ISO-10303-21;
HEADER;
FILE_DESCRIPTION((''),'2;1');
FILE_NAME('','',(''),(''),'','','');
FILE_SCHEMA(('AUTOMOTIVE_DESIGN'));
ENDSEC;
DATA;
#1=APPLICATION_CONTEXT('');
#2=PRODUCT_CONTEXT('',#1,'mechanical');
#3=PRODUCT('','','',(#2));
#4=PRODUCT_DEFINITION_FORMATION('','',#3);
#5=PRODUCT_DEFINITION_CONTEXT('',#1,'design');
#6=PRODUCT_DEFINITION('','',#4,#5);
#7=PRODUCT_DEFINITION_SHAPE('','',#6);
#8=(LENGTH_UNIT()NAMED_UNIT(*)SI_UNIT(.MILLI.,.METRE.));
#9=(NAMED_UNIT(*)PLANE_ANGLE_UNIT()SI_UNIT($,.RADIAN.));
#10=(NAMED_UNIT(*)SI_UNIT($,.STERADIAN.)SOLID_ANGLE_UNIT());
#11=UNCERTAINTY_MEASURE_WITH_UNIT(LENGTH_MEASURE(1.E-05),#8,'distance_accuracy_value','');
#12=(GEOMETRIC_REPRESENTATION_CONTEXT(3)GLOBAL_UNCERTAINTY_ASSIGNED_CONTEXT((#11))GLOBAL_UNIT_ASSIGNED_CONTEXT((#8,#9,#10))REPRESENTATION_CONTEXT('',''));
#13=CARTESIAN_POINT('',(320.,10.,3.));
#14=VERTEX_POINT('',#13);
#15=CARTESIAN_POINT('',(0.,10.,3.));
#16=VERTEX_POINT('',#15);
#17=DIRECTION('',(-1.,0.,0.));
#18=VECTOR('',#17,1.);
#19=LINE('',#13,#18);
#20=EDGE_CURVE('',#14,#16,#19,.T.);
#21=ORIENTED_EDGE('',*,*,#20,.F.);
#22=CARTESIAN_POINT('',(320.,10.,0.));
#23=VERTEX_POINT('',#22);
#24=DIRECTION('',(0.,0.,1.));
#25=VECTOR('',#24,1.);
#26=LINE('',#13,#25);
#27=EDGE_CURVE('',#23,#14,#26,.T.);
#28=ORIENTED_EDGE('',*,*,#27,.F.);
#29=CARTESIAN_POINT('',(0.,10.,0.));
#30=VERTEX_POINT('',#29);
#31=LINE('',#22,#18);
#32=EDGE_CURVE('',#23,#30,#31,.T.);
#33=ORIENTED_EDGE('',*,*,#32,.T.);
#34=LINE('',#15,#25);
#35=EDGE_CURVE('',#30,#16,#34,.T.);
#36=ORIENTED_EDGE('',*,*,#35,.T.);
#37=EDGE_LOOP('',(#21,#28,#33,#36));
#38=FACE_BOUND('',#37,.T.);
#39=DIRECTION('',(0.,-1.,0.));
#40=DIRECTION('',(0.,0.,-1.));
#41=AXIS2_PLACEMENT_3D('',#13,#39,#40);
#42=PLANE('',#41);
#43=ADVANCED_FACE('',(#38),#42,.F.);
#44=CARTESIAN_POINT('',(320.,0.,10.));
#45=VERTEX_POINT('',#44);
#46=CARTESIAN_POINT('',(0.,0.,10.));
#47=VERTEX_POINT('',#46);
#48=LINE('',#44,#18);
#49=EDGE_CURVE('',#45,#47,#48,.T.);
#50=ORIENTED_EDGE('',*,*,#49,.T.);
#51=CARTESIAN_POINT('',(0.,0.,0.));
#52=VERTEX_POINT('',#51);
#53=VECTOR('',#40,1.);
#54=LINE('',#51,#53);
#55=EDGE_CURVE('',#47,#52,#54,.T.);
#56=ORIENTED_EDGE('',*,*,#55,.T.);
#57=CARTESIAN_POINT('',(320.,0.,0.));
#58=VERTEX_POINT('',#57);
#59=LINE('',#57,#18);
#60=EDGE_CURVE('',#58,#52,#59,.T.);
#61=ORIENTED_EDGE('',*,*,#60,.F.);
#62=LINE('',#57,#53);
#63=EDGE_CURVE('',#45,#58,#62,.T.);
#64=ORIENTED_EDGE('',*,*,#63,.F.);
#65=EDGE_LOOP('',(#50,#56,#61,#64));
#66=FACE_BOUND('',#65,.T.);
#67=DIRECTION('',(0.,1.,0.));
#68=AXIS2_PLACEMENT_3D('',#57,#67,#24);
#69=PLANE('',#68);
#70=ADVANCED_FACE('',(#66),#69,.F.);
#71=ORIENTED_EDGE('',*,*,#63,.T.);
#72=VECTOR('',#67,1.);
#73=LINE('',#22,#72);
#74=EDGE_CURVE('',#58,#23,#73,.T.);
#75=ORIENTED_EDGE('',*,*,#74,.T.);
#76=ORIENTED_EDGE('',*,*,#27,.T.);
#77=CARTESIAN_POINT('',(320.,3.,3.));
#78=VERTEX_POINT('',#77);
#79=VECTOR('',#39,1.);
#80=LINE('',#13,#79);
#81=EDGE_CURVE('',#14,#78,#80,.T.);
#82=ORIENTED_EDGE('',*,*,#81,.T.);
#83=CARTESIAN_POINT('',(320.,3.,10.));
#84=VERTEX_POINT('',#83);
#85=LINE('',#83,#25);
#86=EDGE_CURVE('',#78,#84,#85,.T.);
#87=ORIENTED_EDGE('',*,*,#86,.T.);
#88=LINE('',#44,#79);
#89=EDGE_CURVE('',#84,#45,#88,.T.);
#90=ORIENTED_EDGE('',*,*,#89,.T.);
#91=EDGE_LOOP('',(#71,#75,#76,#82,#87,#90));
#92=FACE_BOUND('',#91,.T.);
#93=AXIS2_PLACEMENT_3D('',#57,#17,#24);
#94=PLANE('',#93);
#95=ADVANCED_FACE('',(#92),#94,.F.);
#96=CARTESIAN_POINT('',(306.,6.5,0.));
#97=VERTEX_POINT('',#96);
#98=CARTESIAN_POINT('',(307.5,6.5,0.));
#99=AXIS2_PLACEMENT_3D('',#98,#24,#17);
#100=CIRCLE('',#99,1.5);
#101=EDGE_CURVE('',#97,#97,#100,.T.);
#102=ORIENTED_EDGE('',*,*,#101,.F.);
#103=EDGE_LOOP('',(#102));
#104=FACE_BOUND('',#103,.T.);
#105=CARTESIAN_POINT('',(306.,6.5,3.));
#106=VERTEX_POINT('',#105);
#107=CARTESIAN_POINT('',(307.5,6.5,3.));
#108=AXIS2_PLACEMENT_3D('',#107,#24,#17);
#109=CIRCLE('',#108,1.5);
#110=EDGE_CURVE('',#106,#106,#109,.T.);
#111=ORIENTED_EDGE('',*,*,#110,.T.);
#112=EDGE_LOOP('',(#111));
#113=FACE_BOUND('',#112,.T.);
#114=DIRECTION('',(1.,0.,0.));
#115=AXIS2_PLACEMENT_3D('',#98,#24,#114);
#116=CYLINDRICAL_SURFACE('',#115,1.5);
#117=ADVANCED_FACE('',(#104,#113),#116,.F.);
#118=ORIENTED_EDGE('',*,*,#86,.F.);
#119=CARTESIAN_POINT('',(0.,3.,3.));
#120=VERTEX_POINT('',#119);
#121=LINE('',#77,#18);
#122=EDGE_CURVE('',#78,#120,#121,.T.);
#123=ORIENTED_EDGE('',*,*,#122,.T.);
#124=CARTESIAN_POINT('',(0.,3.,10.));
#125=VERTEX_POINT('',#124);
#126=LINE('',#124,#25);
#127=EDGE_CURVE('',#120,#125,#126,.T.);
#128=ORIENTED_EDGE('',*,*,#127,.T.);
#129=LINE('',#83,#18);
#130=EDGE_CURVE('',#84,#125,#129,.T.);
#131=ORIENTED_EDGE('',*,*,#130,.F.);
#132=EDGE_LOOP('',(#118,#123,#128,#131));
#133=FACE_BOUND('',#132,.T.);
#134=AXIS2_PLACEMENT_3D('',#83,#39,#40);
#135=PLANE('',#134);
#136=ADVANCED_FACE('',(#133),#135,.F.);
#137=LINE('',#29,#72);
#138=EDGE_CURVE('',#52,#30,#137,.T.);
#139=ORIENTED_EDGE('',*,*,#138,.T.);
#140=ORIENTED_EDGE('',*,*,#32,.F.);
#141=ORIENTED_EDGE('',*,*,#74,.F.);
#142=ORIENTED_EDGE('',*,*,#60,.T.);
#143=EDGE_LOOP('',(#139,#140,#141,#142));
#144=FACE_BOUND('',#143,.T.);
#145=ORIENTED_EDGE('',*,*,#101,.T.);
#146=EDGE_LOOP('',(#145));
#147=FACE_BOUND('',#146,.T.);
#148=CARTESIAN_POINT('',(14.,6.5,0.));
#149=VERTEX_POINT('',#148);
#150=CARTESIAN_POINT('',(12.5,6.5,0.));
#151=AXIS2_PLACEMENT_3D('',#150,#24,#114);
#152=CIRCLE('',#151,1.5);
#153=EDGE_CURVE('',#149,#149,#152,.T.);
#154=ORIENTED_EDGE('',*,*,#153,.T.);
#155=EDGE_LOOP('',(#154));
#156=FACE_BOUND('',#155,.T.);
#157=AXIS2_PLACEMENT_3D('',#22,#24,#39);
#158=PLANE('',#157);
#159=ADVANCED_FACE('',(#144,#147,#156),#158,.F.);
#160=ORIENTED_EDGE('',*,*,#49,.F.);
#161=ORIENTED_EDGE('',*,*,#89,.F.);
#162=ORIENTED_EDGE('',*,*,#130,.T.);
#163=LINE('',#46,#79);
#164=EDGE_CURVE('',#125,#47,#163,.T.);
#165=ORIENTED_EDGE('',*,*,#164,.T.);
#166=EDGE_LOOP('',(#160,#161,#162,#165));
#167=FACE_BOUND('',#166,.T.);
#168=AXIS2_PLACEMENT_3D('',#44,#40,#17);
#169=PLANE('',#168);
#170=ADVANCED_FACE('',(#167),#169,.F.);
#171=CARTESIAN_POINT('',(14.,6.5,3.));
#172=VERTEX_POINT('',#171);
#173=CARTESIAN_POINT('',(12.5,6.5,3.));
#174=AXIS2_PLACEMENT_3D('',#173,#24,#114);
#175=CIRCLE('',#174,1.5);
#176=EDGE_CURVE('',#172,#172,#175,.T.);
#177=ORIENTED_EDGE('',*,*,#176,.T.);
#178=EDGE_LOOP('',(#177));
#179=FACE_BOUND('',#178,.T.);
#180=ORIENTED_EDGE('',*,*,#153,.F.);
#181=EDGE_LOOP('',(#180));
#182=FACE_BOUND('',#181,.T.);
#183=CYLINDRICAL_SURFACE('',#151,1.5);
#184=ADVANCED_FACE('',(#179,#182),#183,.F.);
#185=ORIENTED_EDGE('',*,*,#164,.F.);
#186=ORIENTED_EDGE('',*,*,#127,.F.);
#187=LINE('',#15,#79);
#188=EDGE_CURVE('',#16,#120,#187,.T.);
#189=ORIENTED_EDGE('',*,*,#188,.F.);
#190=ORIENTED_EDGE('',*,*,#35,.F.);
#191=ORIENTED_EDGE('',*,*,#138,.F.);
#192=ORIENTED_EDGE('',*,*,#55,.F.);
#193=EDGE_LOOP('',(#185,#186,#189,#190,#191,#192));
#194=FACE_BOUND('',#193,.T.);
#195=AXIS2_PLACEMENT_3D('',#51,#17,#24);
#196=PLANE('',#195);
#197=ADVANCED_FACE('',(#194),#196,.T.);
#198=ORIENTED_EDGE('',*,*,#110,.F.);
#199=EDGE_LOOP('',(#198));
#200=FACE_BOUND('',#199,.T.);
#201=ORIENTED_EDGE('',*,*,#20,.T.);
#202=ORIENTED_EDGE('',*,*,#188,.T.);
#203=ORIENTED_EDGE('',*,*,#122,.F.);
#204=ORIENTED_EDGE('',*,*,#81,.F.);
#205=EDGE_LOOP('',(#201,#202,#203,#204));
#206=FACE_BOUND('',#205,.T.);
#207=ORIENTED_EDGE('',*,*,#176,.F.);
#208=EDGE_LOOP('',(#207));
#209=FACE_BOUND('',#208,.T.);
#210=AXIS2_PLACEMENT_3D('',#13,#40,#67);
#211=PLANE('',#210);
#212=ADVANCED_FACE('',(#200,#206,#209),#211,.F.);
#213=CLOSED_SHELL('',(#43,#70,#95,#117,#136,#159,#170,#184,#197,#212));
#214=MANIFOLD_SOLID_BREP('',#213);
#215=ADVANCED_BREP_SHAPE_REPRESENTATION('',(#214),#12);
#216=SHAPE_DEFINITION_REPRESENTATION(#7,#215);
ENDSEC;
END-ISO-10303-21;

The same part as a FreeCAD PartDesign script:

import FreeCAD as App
import Part
import Sketcher
from FreeCAD import Vector
Q = App.Units.Quantity

doc = App.newDocument("Part")
params = doc.addObject("Spreadsheet::Sheet", "Params")
for row, (alias, value) in enumerate([
    ("sketch1_width", "10 mm"),
    ("sketch1_width2", "7 mm"),
    ("pad1_length", "320 mm"),
    ("sketch2_diameter", "3 mm"),
], start=1):
    params.set(f"A{row}", alias)
    params.set(f"B{row}", "=" + value)
    params.setAlias(f"B{row}", alias)

body = doc.addObject("PartDesign::Body", "Body")

sketch1 = doc.addObject("Sketcher::SketchObject", "Sketch")
body.addObject(sketch1)
sketch1.AttachmentSupport = (doc.YZ_Plane, [""])
sketch1.MapMode = "FlatFace"
sketch1.addGeometry([
    Part.LineSegment(Vector(0, 10, 0), Vector(0, 0, 0)),
    Part.LineSegment(Vector(0, 0, 0), Vector(10, 0, 0)),
    Part.LineSegment(Vector(10, 0, 0), Vector(10, 3, 0)),
    Part.LineSegment(Vector(10, 3, 0), Vector(3, 3, 0)),
    Part.LineSegment(Vector(3, 3, 0), Vector(3, 10, 0)),
    Part.LineSegment(Vector(3, 10, 0), Vector(0, 10, 0)),
], False)
sketch1.addConstraint([
    Sketcher.Constraint("Coincident", 0, 2, 1, 1),
    Sketcher.Constraint("Coincident", 1, 2, 2, 1),
    Sketcher.Constraint("Coincident", 2, 2, 3, 1),
    Sketcher.Constraint("Coincident", 3, 2, 4, 1),
    Sketcher.Constraint("Coincident", 4, 2, 5, 1),
    Sketcher.Constraint("Coincident", 5, 2, 0, 1),
    Sketcher.Constraint("Vertical", 0),
    Sketcher.Constraint("Horizontal", 1),
    Sketcher.Constraint("Vertical", 2),
    Sketcher.Constraint("Horizontal", 3),
    Sketcher.Constraint("Vertical", 4),
    Sketcher.Constraint("Horizontal", 5),
    Sketcher.Constraint("Coincident", 0, 2, -1, 1),
    Sketcher.Constraint("Equal", 1, 0),
    Sketcher.Constraint("Equal", 5, 2),
    Sketcher.Constraint("DistanceX", 1, 1, 1, 2, Q("10 mm")),
    Sketcher.Constraint("DistanceX", 3, 2, 3, 1, Q("7 mm")),
])
sketch1.setExpression("Constraints[15]", "Params.sketch1_width")
sketch1.setExpression("Constraints[16]", "Params.sketch1_width2")
pad1 = doc.addObject("PartDesign::Pad", "Pad")
body.addObject(pad1)
pad1.Profile = sketch1
pad1.setExpression("Length", "Params.pad1_length")

sketch2 = doc.addObject("Sketcher::SketchObject", "Sketch001")
body.addObject(sketch2)
sketch2.AttachmentSupport = (doc.XY_Plane, [""])
sketch2.MapMode = "FlatFace"
sketch2.AttachmentOffset = App.Placement(Vector(0, 0, 3), App.Rotation())
sketch2.addGeometry([
    Part.Circle(Vector(12.5, 6.5, 0), Vector(0, 0, 1), 1.5),
    Part.Circle(Vector(307.5, 6.5, 0), Vector(0, 0, 1), 1.5),
], False)
sketch2.addConstraint([
    Sketcher.Constraint("Equal", 0, 1),
    Sketcher.Constraint("Horizontal", 0, 3, 1, 3),
    Sketcher.Constraint("Diameter", 0, Q("3 mm")),
    Sketcher.Constraint("DistanceX", 0, 3, 1, 3, Q("295 mm")),
    Sketcher.Constraint("DistanceX", -1, 1, 0, 3, Q("12.5 mm")),
    Sketcher.Constraint("DistanceY", -1, 1, 0, 3, Q("6.5 mm")),
])
sketch2.setExpression("Constraints[2]", "Params.sketch2_diameter")
pocket1 = doc.addObject("PartDesign::Pocket", "Pocket")
body.addObject(pocket1)
pocket1.Profile = sketch2
pocket1.Type = "ThroughAll"

doc.recompute()
